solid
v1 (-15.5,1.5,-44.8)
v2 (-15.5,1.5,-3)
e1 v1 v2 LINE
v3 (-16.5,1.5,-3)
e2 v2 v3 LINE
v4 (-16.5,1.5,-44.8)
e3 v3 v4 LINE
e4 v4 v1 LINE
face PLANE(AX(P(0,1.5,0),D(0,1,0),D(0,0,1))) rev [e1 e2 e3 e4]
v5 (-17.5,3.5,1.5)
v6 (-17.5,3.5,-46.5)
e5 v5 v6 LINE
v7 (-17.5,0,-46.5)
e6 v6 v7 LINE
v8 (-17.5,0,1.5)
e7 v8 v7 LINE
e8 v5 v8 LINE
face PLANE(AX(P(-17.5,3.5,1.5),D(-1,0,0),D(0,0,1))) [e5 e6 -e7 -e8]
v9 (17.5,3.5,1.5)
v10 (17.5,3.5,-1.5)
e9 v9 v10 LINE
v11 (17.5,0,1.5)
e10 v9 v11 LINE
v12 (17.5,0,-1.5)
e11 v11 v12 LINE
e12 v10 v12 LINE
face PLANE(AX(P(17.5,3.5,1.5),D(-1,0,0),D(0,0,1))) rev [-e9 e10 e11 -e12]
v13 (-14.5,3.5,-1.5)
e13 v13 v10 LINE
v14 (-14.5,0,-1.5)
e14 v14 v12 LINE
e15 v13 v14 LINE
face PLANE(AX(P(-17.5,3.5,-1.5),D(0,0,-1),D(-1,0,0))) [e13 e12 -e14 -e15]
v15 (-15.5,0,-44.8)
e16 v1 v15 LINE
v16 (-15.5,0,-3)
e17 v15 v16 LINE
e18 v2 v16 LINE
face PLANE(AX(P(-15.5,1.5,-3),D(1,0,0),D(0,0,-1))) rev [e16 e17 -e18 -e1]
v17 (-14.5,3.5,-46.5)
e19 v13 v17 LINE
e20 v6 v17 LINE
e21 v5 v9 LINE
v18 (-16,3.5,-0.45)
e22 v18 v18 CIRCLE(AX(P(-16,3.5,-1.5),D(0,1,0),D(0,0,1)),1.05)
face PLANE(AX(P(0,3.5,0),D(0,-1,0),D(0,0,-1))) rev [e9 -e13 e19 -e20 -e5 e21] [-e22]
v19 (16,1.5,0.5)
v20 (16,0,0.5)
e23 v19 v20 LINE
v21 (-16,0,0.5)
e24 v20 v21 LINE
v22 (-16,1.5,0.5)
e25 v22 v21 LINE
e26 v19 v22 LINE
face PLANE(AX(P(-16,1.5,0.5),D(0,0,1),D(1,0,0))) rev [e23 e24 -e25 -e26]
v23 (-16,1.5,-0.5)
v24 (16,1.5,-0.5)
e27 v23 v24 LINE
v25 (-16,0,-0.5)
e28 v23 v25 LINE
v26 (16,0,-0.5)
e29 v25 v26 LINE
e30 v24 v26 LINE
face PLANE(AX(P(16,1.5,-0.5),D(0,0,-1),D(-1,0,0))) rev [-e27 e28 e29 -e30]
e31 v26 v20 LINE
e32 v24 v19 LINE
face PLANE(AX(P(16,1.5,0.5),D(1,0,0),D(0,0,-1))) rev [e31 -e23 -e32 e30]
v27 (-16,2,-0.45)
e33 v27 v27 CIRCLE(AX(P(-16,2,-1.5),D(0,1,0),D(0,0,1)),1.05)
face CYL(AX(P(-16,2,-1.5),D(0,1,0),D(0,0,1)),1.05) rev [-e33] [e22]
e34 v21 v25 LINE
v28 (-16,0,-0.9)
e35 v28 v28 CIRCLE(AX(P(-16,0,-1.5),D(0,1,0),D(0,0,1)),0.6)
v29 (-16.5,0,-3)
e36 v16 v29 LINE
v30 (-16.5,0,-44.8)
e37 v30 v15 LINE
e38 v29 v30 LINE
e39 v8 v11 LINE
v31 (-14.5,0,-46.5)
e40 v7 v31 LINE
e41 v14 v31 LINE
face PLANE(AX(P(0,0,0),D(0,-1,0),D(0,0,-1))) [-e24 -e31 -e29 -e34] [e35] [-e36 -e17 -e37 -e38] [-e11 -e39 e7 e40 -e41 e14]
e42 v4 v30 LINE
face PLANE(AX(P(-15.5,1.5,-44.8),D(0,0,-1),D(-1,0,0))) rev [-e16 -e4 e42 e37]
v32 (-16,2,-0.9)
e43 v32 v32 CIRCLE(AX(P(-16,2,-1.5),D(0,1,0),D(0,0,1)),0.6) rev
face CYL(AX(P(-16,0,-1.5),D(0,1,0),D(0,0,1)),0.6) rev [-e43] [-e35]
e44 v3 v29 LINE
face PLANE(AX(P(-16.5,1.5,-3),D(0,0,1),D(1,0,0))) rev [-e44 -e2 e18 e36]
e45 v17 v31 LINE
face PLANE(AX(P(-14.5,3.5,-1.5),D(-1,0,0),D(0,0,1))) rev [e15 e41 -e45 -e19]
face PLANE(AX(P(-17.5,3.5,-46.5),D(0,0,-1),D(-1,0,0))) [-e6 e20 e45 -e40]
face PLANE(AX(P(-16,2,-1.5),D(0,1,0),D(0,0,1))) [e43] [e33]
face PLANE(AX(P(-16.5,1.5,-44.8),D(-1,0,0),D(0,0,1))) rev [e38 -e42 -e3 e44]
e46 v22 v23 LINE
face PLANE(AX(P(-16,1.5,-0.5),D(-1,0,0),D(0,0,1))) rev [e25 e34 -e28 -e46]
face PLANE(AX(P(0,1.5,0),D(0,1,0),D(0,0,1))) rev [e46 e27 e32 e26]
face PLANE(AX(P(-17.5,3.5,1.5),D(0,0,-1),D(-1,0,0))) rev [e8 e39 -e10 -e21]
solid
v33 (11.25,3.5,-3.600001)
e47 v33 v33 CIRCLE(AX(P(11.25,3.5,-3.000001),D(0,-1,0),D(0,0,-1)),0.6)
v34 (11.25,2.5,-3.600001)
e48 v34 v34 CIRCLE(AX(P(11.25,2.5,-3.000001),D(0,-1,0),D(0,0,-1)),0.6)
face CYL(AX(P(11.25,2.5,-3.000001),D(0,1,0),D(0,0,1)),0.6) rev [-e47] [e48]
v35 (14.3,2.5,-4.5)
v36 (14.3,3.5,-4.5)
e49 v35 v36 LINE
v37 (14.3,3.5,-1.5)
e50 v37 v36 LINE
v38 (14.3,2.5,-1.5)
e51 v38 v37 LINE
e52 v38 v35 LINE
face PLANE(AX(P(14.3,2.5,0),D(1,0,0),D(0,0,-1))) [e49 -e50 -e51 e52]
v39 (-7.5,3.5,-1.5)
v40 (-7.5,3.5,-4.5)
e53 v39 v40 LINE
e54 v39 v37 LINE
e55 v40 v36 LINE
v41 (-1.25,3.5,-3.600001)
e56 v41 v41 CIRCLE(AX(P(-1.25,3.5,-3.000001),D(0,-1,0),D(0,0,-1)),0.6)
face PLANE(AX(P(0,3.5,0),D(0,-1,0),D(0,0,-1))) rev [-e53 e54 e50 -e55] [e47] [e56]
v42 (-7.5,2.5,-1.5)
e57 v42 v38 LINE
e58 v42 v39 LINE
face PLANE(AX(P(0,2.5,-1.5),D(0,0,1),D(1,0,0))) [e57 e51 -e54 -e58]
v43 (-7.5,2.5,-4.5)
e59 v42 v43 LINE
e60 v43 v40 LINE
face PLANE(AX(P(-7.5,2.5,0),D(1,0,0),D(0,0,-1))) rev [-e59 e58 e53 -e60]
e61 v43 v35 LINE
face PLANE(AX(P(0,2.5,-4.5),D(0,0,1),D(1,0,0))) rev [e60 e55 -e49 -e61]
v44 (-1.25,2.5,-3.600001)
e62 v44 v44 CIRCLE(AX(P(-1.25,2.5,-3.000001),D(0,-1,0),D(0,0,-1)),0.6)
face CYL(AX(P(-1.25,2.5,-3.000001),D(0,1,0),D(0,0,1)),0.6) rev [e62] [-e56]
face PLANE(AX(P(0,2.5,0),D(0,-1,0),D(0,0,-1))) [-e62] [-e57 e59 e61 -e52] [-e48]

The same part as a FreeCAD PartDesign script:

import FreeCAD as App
import Part
import Sketcher
from FreeCAD import Vector


def add_polygon(sketch, points):
    """Adds a closed chain of lines whose ends are joined by coincident constraints."""
    first, n = sketch.GeometryCount, len(points)
    for a, b in zip(points, points[1:] + points[:1]):
        sketch.addGeometry(Part.LineSegment(App.Vector(*a, 0), App.Vector(*b, 0)), False)
    for i in range(n):
        sketch.addConstraint(Sketcher.Constraint("Coincident", first + i, 2, first + (i + 1) % n, 1))

doc = App.newDocument("Part")
body = doc.addObject("PartDesign::Body", "Body")

sketch1 = body.newObject("Sketcher::SketchObject", "Sketch")
sketch1.AttachmentSupport = (doc.getObject("XZ_Plane"), [""])
sketch1.MapMode = "FlatFace"
add_polygon(sketch1, [(-17.5, 1.5), (17.5, 1.5), (17.5, -1.5), (-14.5, -1.5), (-14.5, -46.5), (-17.5, -46.5)])
sketch1.addConstraint([
    Sketcher.Constraint("Horizontal", 0),
    Sketcher.Constraint("Vertical", 1),
    Sketcher.Constraint("Horizontal", 2),
    Sketcher.Constraint("Vertical", 3),
    Sketcher.Constraint("Horizontal", 4),
    Sketcher.Constraint("Vertical", 5),
    Sketcher.Constraint("Symmetric", 1, 2, 5, 2, -1, 1),
    Sketcher.Constraint("Equal", 4, 1),
    Sketcher.Constraint("DistanceX", 0, 1, 0, 2, 35.0),
    Sketcher.Constraint("DistanceX", 2, 2, 2, 1, 32.0),
    Sketcher.Constraint("DistanceY", 3, 2, 3, 1, 45.0),
])
pad1 = body.newObject("PartDesign::Pad", "Pad")
pad1.Profile = sketch1
pad1.Length = 3.5
pad1.Reversed = True

sketch2 = body.newObject("Sketcher::SketchObject", "Sketch001")
sketch2.AttachmentSupport = (doc.getObject("XZ_Plane"), [""])
sketch2.MapMode = "FlatFace"
add_polygon(sketch2, [(-16.5, -3), (-16.5, -44.8), (-15.5, -44.8), (-15.5, -3)])
add_polygon(sketch2, [(-16, 0.5), (-16, -0.5), (16, -0.5), (16, 0.5)])
sketch2.addConstraint([
    Sketcher.Constraint("Vertical", 0),
    Sketcher.Constraint("Horizontal", 1),
    Sketcher.Constraint("Vertical", 2),
    Sketcher.Constraint("Horizontal", 3),
    Sketcher.Constraint("Vertical", 4),
    Sketcher.Constraint("Horizontal", 5),
    Sketcher.Constraint("Vertical", 6),
    Sketcher.Constraint("Horizontal", 7),
    Sketcher.Constraint("Symmetric", 4, 2, 6, 2, -1, 1),
    Sketcher.Constraint("Equal", 3, 4),
    Sketcher.Constraint("DistanceX", 1, 1, 1, 2, 1.0),
    Sketcher.Constraint("DistanceX", 5, 1, 5, 2, 32.0),
    Sketcher.Constraint("DistanceY", 0, 2, 0, 1, 41.8),
    Sketcher.Constraint("DistanceY", 2, 2, -1, 1, 3.0),
    Sketcher.Constraint("DistanceX", 0, 2, -1, 1, 16.5),
])
pocket1 = body.newObject("PartDesign::Pocket", "Pocket")
pocket1.Profile = sketch2
pocket1.Length = 1.5

sketch3 = body.newObject("Sketcher::SketchObject", "Sketch002")
sketch3.AttachmentSupport = (doc.getObject("XZ_Plane"), [""])
sketch3.MapMode = "FlatFace"
sketch3.AttachmentOffset = App.Placement(Vector(0, 0, -3.5), App.Rotation())
sketch3.addGeometry(Part.Circle(Vector(-16, -1.5, 0), Vector(0, 0, 1), 0.6), False)
sketch3.addConstraint([
    Sketcher.Constraint("Diameter", 0, 1.2),
    Sketcher.Constraint("DistanceX", 0, 3, -1, 1, 16.0),
    Sketcher.Constraint("DistanceY", 0, 3, -1, 1, 1.5),
])
pocket2 = body.newObject("PartDesign::Pocket", "Pocket001")
pocket2.Profile = sketch3
pocket2.Type = "ThroughAll"
pocket2.Reversed = True

sketch4 = body.newObject("Sketcher::SketchObject", "Sketch003")
sketch4.AttachmentSupport = (doc.getObject("XZ_Plane"), [""])
sketch4.MapMode = "FlatFace"
sketch4.AttachmentOffset = App.Placement(Vector(0, 0, -3.5), App.Rotation())
sketch4.addGeometry(Part.Circle(Vector(-16, -1.5, 0), Vector(0, 0, 1), 1.1), False)
sketch4.addConstraint([
    Sketcher.Constraint("Diameter", 0, 2.1),
    Sketcher.Constraint("DistanceX", 0, 3, -1, 1, 16.0),
    Sketcher.Constraint("DistanceY", 0, 3, -1, 1, 1.5),
])
pocket3 = body.newObject("PartDesign::Pocket", "Pocket002")
pocket3.Profile = sketch4
pocket3.Length = 1.5
pocket3.Reversed = True
body2 = doc.addObject("PartDesign::Body", "Body001")

sketch5 = body2.newObject("Sketcher::SketchObject", "Sketch004")
sketch5.AttachmentSupport = (doc.getObject("XZ_Plane001"), [""])
sketch5.MapMode = "FlatFace"
sketch5.AttachmentOffset = App.Placement(Vector(0, 0, -3.5), App.Rotation())
add_polygon(sketch5, [(-7.5, -1.5), (-7.5, -4.5), (14.3, -4.5), (14.3, -1.5)])
sketch5.addGeometry(Part.Circle(Vector(-1.2, -3, 0), Vector(0, 0, 1), 0.6), False)
sketch5.addGeometry(Part.Circle(Vector(11.2, -3, 0), Vector(0, 0, 1), 0.6), False)
sketch5.addConstraint([
    Sketcher.Constraint("Vertical", 0),
    Sketcher.Constraint("Horizontal", 1),
    Sketcher.Constraint("Vertical", 2),
    Sketcher.Constraint("Horizontal", 3),
    Sketcher.Constraint("Equal", 4, 5),
    Sketcher.Constraint("Horizontal", 4, 3, 5, 3),
    Sketcher.Constraint("Diameter", 4, 1.2),
    Sketcher.Constraint("DistanceY", 0, 2, 0, 1, 3.0),
    Sketcher.Constraint("DistanceX", 1, 1, 1, 2, 21.8),
    Sketcher.Constraint("DistanceY", 4, 3, -1, 1, 3.000001),
    Sketcher.Constraint("DistanceX", 0, 2, -1, 1, 7.5),
    Sketcher.Constraint("DistanceY", 0, 2, -1, 1, 4.5),
    Sketcher.Constraint("DistanceX", 4, 3, 5, 3, 12.5),
    Sketcher.Constraint("DistanceX", 4, 3, -1, 1, 1.25),
])
pad2 = body2.newObject("PartDesign::Pad", "Pad001")
pad2.Profile = sketch5
pad2.Length = 1

doc.recompute()
